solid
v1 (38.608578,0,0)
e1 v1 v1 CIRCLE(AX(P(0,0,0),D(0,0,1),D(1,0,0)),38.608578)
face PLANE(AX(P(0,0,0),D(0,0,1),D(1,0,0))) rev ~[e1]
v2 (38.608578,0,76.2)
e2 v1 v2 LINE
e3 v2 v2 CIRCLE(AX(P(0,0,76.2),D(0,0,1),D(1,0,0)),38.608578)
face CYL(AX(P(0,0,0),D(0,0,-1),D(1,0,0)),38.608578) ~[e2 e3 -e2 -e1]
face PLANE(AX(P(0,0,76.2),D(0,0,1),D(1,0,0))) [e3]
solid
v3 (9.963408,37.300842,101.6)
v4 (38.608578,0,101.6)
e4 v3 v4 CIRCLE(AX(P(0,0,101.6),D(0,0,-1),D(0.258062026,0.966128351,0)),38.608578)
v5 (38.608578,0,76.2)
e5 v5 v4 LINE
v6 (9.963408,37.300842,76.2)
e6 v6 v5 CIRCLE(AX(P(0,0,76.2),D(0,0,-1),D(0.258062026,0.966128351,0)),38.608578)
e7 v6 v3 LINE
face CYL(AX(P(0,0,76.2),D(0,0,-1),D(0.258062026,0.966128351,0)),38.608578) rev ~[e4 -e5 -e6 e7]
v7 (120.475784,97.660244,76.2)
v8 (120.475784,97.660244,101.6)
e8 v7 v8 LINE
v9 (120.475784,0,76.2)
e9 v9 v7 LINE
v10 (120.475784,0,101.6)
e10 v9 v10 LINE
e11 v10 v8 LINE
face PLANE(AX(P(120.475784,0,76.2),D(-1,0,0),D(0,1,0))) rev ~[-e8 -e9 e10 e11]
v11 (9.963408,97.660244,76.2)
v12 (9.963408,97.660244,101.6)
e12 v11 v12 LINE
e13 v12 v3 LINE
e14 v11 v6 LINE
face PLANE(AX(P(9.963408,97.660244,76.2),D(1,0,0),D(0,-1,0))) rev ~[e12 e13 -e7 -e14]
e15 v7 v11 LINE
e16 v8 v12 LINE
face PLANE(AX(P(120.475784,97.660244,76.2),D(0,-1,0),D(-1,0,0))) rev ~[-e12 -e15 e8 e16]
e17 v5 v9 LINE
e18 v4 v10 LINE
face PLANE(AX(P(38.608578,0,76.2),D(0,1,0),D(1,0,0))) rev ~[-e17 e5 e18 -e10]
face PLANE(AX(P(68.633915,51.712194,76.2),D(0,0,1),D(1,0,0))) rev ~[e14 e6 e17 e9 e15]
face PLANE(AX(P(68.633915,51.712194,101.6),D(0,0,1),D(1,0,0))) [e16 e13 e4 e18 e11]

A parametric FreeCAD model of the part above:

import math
import FreeCAD as App
import Part
import Sketcher

V = App.Vector
Q = App.Units.Quantity

doc = App.newDocument("Part")
body = doc.addObject("PartDesign::Body", "Body")

sketch1 = body.newObject("Sketcher::SketchObject", "Sketch")
sketch1.AttachmentSupport = (doc.getObject("XY_Plane"), [""])
sketch1.MapMode = "FlatFace"
sketch1.addGeometry(Part.Circle(V(0, 0, 0), V(0, 0, 1), 39), False)
sketch1.addConstraint([
    Sketcher.Constraint("Coincident", 0, 3, -1, 1),
    Sketcher.Constraint("Diameter", 0, 77.217156),
])
pad1 = body.newObject("PartDesign::Pad", "Pad")
pad1.Profile = sketch1
pad1.Length = Q("3 in")
body2 = doc.addObject("PartDesign::Body", "Body001")

sketch2 = body2.newObject("Sketcher::SketchObject", "Sketch001")
sketch2.AttachmentSupport = (doc.getObject("XY_Plane001"), [""])
sketch2.MapMode = "FlatFace"
sketch2.AttachmentOffset = App.Placement(V(0, 0, 3 * 25.4), App.Rotation())
sketch2.addGeometry([
    Part.ArcOfCircle(Part.Circle(V(0, 0, 0), V(0, 0, 1), 39), math.radians(0), math.radians(75)),
    Part.LineSegment(V(39, 0, 0), V(120, 0, 0)),
    Part.LineSegment(V(120, 0, 0), V(120, 98, 0)),
    Part.LineSegment(V(120, 98, 0), V(10, 98, 0)),
    Part.LineSegment(V(10, 98, 0), V(10, 37, 0)),
], False)
sketch2.addConstraint([
    Sketcher.Constraint("Coincident", 0, 1, 1, 1),
    Sketcher.Constraint("Coincident", 1, 2, 2, 1),
    Sketcher.Constraint("Coincident", 2, 2, 3, 1),
    Sketcher.Constraint("Coincident", 3, 2, 4, 1),
    Sketcher.Constraint("Coincident", 4, 2, 0, 2),
    Sketcher.Constraint("Horizontal", 1),
    Sketcher.Constraint("Vertical", 2),
    Sketcher.Constraint("Horizontal", 3),
    Sketcher.Constraint("Vertical", 4),
    Sketcher.Constraint("Coincident", 0, 3, -1, 1),
    Sketcher.Constraint("PointOnObject", 0, 1, -1),
    Sketcher.Constraint("Radius", 0, 38.608578),
    Sketcher.Constraint("DistanceX", 1, 1, 1, 2, 81.867206),
    Sketcher.Constraint("DistanceX", 3, 2, 3, 1, 110.512376),
    Sketcher.Constraint("DistanceY", 2, 1, 2, 2, 97.660244),
])
pad2 = body2.newObject("PartDesign::Pad", "Pad001")
pad2.Profile = sketch2
pad2.Length = Q("1 in")

doc.recompute()
